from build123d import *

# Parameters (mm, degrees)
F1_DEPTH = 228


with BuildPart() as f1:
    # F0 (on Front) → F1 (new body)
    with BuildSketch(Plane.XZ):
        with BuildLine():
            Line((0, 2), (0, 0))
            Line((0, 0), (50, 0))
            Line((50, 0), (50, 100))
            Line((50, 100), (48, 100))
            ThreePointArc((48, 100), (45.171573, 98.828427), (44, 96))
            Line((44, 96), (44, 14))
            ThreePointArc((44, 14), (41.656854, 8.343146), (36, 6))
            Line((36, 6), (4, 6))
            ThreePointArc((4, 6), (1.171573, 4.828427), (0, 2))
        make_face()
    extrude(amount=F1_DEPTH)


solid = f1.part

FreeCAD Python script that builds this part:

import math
import FreeCAD as App
import Part
import Sketcher
from FreeCAD import Vector

doc = App.newDocument("Part")
params = doc.addObject("Spreadsheet::Sheet", "Params")
for row, (alias, value) in enumerate([
    ("sketch1_radius", "4 mm"),
    ("sketch1_radius2", "8.000001 mm"),
    ("sketch1_width", "50 mm"),
    ("sketch1_width2", "2 mm"),
    ("sketch1_height", "100 mm"),
    ("pad1_length", "228 mm"),
], start=1):
    params.set(f"A{row}", alias)
    params.set(f"B{row}", "=" + value)
    params.setAlias(f"B{row}", alias)

body = doc.addObject("PartDesign::Body", "Body")

sketch1 = body.newObject("Sketcher::SketchObject", "Sketch")
sketch1.AttachmentSupport = (doc.getObject("XZ_Plane"), [""])
sketch1.MapMode = "FlatFace"
sketch1.addGeometry([
    Part.LineSegment(Vector(0, 2, 0), Vector(0, 0, 0)),
    Part.LineSegment(Vector(0, 0, 0), Vector(50, 0, 0)),
    Part.LineSegment(Vector(50, 0, 0), Vector(50, 100, 0)),
    Part.LineSegment(Vector(50, 100, 0), Vector(48, 100, 0)),
    Part.ArcOfCircle(Part.Circle(Vector(48, 96, 0), Vector(0, 0, 1), 4), math.radians(90), math.radians(180)),
    Part.LineSegment(Vector(44, 96, 0), Vector(44, 14, 0)),
    Part.ArcOfCircle(Part.Circle(Vector(36, 14, 0), Vector(0, 0, 1), 8), math.radians(-90), math.radians(0)),
    Part.LineSegment(Vector(36, 6, 0), Vector(4, 6, 0)),
    Part.ArcOfCircle(Part.Circle(Vector(4, 2, 0), Vector(0, 0, 1), 4), math.radians(90), math.radians(180)),
], False)
sketch1.addConstraint([
    Sketcher.Constraint("Coincident", 0, 2, 1, 1),
    Sketcher.Constraint("Coincident", 1, 2, 2, 1),
    Sketcher.Constraint("Coincident", 2, 2, 3, 1),
    Sketcher.Constraint("Tangent", 3, 2, 4, 1),
    Sketcher.Constraint("Tangent", 4, 2, 5, 1),
    Sketcher.Constraint("Tangent", 5, 2, 6, 2),
    Sketcher.Constraint("Tangent", 6, 1, 7, 1),
    Sketcher.Constraint("Tangent", 7, 2, 8, 1),
    Sketcher.Constraint("Tangent", 8, 2, 0, 1),
    Sketcher.Constraint("Vertical", 0),
    Sketcher.Constraint("Horizontal", 1),
    Sketcher.Constraint("Vertical", 2),
    Sketcher.Constraint("Horizontal", 3),
    Sketcher.Constraint("Vertical", 5),
    Sketcher.Constraint("Horizontal", 7),
    Sketcher.Constraint("Coincident", 0, 2, -1, 1),
    Sketcher.Constraint("Equal", 4, 8),
    Sketcher.Constraint("Equal", 3, 0),
    Sketcher.Constraint("Radius", 4, 4.0),
    Sketcher.Constraint("Radius", 6, 8.000001),
    Sketcher.Constraint("DistanceX", 1, 1, 1, 2, 50.0),
    Sketcher.Constraint("DistanceX", 3, 2, 3, 1, 2.0),
    Sketcher.Constraint("DistanceY", 2, 1, 2, 2, 100.0),
])
sketch1.setExpression("Constraints[18]", "Params.sketch1_radius")
sketch1.setExpression("Constraints[19]", "Params.sketch1_radius2")
sketch1.setExpression("Constraints[20]", "Params.sketch1_width")
sketch1.setExpression("Constraints[21]", "Params.sketch1_width2")
sketch1.setExpression("Constraints[22]", "Params.sketch1_height")
pad1 = body.newObject("PartDesign::Pad", "Pad")
pad1.Profile = sketch1
pad1.setExpression("Length", "Params.pad1_length")

doc.recompute()
